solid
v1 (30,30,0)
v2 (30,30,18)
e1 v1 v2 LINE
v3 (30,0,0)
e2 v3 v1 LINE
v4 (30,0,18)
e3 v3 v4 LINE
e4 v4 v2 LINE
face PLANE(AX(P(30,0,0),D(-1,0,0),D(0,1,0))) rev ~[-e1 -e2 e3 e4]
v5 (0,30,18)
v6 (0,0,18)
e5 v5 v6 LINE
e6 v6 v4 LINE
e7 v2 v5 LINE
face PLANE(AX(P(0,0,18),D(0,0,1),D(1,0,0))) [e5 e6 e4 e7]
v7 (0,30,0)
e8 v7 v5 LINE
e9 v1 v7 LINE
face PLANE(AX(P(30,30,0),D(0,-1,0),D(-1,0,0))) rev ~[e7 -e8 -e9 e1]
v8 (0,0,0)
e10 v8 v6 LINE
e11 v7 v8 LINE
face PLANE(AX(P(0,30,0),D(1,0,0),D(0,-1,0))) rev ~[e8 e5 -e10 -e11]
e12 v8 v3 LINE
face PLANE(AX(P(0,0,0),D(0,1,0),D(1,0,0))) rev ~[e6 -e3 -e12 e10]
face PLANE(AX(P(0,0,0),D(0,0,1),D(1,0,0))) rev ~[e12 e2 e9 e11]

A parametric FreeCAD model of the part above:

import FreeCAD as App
import Part
import Sketcher

V = App.Vector


def add_polygon(sketch, points):
    """Adds a closed chain of lines whose ends are joined by coincident constraints."""
    first, n = sketch.GeometryCount, len(points)
    for a, b in zip(points, points[1:] + points[:1]):
        sketch.addGeometry(Part.LineSegment(App.Vector(*a, 0), App.Vector(*b, 0)), False)
    for i in range(n):
        sketch.addConstraint(Sketcher.Constraint("Coincident", first + i, 2, first + (i + 1) % n, 1))

doc = App.newDocument("Part")
body = doc.addObject("PartDesign::Body", "Body")

sketch1 = doc.addObject("Sketcher::SketchObject", "Sketch")
body.addObject(sketch1)
sketch1.AttachmentSupport = (doc.XY_Plane, [""])
sketch1.MapMode = "FlatFace"
add_polygon(sketch1, [(0, 30), (0, 0), (30, 0), (30, 30)])
sketch1.addConstraint(Sketcher.Constraint("Vertical", 0))
sketch1.addConstraint(Sketcher.Constraint("Horizontal", 1))
sketch1.addConstraint(Sketcher.Constraint("Vertical", 2))
sketch1.addConstraint(Sketcher.Constraint("Horizontal", 3))
sketch1.addConstraint(Sketcher.Constraint("Coincident", 0, 2, -1, 1))
sketch1.addConstraint(Sketcher.Constraint("Equal", 3, 0))
sketch1.addConstraint(Sketcher.Constraint("DistanceX", 1, 1, 1, 2, 30.0))
pad1 = doc.addObject("PartDesign::Pad", "Pad")
body.addObject(pad1)
pad1.Profile = sketch1
pad1.Length = 18

doc.recompute()
